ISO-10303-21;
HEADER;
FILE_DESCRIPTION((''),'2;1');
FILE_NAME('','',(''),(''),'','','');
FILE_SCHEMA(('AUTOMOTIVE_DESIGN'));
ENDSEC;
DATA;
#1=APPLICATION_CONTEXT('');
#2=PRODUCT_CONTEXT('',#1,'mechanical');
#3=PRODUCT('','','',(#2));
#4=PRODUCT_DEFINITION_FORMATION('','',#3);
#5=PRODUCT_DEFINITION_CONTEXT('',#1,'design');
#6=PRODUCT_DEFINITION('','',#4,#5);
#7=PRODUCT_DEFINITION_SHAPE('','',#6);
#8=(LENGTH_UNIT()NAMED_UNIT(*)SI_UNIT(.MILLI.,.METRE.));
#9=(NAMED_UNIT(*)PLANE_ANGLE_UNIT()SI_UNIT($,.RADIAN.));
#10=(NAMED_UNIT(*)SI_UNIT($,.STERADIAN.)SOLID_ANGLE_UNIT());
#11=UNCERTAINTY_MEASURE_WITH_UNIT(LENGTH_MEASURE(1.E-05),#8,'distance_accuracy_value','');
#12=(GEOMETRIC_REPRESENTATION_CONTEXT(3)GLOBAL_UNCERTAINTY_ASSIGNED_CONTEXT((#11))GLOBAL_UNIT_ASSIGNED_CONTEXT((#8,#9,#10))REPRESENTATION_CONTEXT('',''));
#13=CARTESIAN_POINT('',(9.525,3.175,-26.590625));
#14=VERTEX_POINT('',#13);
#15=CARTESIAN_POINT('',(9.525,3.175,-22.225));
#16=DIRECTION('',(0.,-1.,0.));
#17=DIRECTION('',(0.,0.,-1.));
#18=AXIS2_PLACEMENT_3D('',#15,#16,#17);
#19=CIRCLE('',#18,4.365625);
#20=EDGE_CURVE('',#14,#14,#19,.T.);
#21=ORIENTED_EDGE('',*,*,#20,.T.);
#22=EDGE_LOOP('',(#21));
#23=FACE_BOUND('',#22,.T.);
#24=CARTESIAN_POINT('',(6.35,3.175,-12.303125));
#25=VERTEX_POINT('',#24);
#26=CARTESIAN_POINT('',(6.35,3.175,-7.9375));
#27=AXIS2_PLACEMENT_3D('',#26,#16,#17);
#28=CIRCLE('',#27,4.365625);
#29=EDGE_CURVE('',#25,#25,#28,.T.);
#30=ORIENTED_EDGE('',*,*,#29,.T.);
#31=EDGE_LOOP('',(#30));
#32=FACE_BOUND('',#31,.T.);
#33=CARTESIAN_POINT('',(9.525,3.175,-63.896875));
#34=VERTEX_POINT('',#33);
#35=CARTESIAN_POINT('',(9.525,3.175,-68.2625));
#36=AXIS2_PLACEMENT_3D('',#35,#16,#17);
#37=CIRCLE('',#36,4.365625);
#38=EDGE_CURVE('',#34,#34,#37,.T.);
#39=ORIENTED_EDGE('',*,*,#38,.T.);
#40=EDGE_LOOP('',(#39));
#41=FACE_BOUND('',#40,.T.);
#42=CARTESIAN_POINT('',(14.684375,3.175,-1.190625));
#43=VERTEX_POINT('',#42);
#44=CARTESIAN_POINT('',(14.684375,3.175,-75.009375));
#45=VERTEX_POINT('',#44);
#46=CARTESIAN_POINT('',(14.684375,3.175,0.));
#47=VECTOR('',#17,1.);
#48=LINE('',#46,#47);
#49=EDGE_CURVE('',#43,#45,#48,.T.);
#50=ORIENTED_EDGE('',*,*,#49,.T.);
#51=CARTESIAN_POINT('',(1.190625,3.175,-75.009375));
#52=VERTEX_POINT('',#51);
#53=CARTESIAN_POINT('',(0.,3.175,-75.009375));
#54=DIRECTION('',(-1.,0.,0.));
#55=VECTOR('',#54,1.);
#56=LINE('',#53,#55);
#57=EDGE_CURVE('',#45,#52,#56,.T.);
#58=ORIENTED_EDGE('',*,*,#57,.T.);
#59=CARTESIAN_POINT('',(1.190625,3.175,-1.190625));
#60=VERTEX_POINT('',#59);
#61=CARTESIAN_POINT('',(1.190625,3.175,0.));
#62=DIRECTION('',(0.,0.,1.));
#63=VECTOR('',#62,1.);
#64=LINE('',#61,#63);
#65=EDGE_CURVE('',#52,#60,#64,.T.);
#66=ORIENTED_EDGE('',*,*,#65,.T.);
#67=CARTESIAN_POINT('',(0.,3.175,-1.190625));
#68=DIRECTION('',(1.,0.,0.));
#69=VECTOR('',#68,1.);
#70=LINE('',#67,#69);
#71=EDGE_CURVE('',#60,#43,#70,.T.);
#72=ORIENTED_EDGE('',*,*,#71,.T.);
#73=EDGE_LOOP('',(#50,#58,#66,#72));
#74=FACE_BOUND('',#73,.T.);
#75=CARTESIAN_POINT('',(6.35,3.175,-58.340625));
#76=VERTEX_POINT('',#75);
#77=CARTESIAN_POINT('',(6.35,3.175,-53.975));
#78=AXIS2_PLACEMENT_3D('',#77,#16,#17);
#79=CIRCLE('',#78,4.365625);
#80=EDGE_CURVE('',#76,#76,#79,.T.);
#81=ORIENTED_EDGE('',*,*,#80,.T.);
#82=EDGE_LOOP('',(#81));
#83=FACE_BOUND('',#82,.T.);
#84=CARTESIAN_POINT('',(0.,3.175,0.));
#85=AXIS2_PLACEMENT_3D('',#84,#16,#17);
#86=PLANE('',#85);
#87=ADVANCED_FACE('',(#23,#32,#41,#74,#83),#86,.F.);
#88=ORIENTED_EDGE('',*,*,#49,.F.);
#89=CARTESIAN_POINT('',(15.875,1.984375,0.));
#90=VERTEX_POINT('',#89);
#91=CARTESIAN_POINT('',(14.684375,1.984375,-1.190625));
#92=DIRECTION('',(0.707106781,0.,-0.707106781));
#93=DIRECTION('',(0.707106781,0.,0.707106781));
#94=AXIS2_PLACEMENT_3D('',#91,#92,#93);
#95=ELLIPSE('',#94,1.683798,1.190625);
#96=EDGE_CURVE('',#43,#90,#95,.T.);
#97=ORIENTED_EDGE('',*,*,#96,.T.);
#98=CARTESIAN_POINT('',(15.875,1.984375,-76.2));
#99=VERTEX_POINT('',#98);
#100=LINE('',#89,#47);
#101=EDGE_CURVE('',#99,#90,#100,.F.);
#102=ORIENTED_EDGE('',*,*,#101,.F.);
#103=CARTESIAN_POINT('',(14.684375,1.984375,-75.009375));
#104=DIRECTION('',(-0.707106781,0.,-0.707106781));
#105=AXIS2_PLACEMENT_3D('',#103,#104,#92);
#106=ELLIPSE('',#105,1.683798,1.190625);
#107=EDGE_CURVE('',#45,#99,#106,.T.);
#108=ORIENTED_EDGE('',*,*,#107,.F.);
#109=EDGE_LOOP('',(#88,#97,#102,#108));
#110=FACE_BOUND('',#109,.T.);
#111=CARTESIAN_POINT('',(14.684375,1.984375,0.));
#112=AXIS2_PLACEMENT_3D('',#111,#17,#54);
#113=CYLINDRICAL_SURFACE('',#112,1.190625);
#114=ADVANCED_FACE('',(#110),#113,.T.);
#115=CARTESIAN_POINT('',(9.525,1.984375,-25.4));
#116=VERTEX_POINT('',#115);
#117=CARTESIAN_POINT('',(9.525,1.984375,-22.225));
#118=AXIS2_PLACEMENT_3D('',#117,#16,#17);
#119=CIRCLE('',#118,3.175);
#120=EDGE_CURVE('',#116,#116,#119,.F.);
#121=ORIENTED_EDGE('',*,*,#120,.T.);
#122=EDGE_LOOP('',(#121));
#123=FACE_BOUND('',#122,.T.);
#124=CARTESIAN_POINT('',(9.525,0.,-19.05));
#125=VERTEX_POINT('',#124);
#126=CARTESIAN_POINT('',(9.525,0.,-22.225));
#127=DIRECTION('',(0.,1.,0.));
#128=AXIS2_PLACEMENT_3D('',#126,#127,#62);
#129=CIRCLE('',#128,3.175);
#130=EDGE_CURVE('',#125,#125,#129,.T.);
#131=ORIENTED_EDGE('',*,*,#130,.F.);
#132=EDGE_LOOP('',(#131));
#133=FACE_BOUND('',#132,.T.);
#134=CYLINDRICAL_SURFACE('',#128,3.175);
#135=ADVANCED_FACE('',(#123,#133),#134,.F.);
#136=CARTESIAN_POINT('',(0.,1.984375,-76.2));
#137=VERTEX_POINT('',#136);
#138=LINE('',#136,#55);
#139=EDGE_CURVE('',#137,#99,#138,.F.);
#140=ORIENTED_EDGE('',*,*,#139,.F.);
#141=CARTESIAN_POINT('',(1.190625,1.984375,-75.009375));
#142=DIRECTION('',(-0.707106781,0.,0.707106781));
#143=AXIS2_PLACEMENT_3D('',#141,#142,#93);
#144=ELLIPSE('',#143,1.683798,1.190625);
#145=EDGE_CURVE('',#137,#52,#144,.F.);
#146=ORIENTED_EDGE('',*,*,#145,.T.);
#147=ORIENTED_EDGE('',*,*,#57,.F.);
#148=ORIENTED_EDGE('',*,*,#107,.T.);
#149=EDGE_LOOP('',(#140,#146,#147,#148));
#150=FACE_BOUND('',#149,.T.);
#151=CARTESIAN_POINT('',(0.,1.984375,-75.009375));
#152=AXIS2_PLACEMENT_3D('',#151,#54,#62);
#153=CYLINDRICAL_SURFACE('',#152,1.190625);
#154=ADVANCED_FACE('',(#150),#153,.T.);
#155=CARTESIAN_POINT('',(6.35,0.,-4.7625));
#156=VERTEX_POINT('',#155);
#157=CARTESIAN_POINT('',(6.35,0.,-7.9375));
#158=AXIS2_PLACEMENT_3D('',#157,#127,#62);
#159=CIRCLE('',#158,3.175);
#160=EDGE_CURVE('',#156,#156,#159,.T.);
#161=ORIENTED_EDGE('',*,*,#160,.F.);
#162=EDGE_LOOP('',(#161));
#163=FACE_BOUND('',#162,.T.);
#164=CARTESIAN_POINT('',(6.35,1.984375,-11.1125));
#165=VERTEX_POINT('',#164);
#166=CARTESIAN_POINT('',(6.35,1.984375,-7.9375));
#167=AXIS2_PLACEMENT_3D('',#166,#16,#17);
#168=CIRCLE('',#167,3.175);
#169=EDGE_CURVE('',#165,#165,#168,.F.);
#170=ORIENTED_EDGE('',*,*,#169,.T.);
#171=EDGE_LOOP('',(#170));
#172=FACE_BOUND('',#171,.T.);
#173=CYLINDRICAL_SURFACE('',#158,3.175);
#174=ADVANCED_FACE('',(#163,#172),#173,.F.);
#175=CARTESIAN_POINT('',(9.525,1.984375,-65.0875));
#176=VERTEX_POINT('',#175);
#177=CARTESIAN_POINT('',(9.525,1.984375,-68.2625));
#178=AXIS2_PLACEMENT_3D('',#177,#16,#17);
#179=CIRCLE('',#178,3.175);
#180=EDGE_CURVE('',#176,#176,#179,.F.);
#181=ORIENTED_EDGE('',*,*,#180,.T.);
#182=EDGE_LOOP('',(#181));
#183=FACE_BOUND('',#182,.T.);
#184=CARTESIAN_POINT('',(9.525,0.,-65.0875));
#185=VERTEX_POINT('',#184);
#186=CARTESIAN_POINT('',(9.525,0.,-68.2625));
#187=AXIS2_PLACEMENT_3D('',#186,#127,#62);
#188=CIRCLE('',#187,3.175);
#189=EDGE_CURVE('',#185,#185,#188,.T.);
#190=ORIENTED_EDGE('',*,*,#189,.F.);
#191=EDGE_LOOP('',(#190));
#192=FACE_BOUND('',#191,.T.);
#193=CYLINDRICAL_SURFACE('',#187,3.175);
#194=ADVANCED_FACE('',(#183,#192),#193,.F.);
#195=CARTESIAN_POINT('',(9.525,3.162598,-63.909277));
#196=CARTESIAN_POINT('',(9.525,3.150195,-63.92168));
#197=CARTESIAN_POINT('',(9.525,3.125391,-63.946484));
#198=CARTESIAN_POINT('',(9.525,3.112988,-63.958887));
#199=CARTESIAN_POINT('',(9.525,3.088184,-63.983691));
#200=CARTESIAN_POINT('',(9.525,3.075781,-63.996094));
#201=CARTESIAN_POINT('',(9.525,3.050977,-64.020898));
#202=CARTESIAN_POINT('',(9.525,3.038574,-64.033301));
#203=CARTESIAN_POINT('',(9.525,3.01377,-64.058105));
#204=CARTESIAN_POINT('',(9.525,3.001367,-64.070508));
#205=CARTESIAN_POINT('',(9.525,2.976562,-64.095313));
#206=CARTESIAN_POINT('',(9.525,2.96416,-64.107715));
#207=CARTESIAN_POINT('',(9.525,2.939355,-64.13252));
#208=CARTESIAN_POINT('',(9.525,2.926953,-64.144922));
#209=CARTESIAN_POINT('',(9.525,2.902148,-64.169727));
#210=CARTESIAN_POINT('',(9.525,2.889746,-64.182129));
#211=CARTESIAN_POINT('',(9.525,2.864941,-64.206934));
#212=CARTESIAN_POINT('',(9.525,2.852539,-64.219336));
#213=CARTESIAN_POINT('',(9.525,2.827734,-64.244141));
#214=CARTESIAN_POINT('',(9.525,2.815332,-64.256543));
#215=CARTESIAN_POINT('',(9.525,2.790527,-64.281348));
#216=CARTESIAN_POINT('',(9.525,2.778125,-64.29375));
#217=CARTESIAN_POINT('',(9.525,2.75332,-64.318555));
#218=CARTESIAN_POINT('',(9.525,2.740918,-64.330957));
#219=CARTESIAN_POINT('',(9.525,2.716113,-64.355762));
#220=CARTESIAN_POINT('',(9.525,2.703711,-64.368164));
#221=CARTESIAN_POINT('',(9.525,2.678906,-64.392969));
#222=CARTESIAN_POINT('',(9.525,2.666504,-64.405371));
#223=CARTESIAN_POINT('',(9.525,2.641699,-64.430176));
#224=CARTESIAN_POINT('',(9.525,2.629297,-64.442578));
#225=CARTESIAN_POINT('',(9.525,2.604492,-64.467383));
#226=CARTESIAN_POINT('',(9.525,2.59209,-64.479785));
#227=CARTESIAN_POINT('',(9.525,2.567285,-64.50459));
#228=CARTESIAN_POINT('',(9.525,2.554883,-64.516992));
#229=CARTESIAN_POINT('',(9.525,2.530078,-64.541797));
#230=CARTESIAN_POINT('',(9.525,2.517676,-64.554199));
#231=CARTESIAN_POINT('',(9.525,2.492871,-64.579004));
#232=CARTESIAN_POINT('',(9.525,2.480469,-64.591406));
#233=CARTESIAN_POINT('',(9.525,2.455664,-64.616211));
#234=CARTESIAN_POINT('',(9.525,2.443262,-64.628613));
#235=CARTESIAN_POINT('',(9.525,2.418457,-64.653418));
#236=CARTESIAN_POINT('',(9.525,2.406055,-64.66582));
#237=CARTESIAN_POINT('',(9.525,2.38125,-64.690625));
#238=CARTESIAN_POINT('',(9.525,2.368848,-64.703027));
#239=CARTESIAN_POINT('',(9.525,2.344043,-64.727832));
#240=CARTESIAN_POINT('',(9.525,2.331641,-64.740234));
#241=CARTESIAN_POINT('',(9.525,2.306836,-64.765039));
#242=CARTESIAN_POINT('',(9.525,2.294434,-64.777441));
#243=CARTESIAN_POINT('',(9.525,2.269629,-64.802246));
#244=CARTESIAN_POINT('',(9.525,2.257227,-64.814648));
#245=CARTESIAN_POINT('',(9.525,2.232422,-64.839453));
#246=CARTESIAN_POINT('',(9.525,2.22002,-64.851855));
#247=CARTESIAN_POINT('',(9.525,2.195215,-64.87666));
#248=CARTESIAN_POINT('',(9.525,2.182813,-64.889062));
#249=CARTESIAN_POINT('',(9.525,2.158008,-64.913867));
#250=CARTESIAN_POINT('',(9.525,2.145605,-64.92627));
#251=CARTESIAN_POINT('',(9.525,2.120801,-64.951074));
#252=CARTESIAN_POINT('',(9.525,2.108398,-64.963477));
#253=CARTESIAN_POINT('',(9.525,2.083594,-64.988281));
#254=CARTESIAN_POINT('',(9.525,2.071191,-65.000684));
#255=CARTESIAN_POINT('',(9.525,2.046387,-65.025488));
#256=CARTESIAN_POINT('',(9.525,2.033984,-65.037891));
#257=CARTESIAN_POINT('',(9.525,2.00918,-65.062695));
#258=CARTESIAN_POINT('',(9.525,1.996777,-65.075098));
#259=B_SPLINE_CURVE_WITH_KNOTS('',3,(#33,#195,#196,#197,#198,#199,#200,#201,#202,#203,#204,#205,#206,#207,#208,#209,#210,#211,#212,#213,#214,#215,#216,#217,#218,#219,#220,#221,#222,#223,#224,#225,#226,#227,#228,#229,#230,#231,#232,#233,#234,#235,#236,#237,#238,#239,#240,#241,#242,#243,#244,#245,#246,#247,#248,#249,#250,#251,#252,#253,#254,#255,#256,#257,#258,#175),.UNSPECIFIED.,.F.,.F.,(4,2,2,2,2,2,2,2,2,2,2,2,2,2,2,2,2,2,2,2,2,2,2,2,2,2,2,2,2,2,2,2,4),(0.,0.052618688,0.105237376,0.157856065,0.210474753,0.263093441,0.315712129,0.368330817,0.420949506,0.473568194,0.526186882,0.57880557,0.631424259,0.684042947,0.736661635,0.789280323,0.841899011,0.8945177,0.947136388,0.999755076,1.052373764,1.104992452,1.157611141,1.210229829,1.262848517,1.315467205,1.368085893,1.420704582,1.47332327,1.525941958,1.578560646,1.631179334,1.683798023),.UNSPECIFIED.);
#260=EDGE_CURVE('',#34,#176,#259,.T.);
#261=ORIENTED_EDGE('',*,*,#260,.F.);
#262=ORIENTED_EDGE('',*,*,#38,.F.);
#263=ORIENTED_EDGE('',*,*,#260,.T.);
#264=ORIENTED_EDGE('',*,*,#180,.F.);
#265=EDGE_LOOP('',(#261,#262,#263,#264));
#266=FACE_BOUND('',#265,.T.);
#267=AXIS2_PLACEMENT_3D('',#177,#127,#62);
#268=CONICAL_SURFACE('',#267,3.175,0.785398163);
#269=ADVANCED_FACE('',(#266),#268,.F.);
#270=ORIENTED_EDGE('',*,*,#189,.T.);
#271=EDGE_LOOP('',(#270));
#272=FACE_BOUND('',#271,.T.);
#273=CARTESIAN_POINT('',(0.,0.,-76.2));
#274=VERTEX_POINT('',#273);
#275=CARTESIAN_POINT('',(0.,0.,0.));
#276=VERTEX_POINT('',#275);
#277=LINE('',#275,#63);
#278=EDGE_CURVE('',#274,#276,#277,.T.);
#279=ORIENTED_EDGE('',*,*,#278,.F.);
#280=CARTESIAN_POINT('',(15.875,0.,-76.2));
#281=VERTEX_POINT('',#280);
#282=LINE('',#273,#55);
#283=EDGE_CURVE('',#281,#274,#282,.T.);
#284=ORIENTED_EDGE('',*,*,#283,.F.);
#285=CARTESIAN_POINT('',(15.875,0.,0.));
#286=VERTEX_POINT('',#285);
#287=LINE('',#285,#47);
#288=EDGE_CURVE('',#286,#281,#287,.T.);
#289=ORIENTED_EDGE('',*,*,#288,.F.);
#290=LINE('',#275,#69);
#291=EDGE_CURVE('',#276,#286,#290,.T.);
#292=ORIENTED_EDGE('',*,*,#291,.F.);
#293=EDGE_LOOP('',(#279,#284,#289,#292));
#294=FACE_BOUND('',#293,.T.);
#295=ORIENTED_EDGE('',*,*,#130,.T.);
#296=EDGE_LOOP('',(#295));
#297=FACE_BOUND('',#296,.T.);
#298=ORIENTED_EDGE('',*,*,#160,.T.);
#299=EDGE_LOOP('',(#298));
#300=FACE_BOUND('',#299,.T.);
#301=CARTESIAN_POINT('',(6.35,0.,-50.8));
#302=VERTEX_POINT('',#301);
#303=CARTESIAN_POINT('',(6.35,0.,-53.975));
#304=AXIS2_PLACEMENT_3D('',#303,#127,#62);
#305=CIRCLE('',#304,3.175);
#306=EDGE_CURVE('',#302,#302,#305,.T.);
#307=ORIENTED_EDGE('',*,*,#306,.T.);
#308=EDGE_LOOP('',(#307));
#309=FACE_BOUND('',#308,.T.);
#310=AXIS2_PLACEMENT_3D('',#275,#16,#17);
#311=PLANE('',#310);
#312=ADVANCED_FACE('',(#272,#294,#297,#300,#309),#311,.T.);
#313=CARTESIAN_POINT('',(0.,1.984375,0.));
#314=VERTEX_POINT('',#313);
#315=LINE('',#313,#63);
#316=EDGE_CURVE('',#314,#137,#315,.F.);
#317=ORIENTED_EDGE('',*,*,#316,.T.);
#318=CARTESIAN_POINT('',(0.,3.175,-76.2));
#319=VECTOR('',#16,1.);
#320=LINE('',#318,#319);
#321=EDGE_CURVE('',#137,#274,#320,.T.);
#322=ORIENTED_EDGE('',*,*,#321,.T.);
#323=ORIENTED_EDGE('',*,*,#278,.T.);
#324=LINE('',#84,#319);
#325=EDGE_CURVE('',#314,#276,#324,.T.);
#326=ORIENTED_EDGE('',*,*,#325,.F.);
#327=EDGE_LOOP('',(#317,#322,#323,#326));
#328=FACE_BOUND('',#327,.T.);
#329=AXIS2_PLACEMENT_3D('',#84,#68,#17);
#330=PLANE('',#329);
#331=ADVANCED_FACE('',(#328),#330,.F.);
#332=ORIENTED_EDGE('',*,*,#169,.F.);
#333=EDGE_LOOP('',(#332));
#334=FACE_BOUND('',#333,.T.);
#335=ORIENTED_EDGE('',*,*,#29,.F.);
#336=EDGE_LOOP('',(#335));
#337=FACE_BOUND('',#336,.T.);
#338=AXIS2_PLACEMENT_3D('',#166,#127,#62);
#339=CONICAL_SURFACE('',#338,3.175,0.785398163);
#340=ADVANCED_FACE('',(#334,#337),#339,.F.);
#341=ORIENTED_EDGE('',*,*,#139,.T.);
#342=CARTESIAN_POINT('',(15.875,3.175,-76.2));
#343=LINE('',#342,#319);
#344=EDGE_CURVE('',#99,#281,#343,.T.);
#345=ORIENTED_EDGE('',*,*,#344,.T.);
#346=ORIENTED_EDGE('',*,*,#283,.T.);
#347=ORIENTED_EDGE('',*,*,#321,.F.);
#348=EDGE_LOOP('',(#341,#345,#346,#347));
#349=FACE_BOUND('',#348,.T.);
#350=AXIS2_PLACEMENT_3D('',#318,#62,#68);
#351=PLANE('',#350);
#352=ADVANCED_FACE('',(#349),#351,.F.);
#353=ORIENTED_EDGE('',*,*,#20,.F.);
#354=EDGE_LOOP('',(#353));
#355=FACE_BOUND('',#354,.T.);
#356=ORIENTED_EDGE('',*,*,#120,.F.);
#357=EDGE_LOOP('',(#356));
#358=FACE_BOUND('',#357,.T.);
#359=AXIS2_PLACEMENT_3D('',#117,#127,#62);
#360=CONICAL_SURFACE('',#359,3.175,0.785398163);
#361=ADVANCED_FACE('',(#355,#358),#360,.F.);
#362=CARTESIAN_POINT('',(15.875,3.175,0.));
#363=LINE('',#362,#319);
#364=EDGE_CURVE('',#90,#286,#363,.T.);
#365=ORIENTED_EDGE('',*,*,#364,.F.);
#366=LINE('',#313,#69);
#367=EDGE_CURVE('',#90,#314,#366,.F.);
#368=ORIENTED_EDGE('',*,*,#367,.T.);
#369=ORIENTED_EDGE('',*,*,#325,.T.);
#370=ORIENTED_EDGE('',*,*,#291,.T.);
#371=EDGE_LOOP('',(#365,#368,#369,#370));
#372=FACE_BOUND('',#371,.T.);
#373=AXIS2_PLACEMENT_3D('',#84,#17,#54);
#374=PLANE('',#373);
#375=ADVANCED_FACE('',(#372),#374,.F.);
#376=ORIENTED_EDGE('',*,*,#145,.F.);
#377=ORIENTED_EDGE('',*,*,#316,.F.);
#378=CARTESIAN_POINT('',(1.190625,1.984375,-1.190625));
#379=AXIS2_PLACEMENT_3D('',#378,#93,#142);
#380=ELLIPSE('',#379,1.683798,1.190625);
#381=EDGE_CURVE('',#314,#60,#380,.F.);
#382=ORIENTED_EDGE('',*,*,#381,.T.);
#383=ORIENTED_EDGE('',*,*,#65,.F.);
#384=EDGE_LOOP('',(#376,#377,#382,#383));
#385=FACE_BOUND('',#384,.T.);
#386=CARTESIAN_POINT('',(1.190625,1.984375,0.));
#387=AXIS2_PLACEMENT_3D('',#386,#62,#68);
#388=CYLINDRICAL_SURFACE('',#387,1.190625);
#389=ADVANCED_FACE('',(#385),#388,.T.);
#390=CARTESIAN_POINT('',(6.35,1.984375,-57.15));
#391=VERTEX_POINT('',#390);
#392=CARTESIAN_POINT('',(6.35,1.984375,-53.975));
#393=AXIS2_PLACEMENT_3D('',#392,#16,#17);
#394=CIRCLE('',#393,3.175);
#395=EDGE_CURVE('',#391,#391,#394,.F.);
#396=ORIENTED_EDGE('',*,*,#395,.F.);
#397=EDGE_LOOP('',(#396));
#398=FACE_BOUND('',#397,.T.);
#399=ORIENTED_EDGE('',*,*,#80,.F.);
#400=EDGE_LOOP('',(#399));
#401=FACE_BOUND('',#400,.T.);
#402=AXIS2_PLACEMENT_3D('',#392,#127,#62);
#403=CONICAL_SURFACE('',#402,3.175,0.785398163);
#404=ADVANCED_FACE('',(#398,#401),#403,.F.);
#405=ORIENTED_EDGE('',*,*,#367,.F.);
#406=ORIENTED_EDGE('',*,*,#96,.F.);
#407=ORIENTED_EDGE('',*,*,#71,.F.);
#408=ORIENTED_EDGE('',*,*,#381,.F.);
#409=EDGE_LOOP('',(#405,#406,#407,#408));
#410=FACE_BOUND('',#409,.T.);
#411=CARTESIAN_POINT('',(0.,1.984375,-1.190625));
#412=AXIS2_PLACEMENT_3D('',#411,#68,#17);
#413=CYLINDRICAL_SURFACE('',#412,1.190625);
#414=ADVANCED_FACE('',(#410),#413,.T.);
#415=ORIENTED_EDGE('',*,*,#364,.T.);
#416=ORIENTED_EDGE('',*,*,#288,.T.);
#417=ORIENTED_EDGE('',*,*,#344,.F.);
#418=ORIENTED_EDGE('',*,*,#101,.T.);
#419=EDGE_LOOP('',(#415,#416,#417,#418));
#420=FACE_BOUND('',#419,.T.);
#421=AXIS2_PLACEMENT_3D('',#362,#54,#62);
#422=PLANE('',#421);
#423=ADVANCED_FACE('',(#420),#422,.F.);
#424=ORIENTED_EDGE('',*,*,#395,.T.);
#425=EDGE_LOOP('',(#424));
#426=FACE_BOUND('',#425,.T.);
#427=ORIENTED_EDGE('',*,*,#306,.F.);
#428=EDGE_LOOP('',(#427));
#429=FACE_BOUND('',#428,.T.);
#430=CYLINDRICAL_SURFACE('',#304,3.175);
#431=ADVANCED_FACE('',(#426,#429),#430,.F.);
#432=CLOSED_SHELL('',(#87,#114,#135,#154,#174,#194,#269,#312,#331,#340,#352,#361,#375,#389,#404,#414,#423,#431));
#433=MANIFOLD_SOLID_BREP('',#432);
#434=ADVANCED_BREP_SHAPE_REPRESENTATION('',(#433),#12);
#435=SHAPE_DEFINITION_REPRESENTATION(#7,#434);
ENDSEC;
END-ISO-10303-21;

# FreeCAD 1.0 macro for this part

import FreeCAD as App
import Part
import Sketcher

V = App.Vector
Q = App.Units.Quantity


def edges_at(feature, points):
    """Names of the edges that pass closest to the given points."""
    edges = feature.Shape.Edges
    near = lambda p: min(range(len(edges)), key=lambda i: edges[i].distToShape(Part.Vertex(*p))[0])
    return sorted({f"Edge{near(p) + 1}" for p in points})

doc = App.newDocument("Part")
params = doc.addObject("Spreadsheet::Sheet", "Params")
for row, (alias, value) in enumerate([
    ("sketch1_height", "3 in"),
    ("sketch1_width", "0.625 in"),
    ("pad1_length", "0.125 in"),
    ("sketch2_diameter", "0.25 in"),
    ("chamfer_size", "0.046875 in"),
    ("fillet_radius", "0.046875 in"),
], start=1):
    params.set(f"A{row}", alias)
    params.set(f"B{row}", "=" + value)
    params.setAlias(f"B{row}", alias)

body = doc.addObject("PartDesign::Body", "Body")

sketch1 = body.newObject("Sketcher::SketchObject", "Sketch")
sketch1.AttachmentSupport = (doc.getObject("XZ_Plane"), [""])
sketch1.MapMode = "FlatFace"
sketch1.addGeometry(Part.LineSegment(V(0, -76.2, 0), V(0, 0, 0)), False)
sketch1.addGeometry(Part.LineSegment(V(0, 0, 0), V(15.875, 0, 0)), False)
sketch1.addGeometry(Part.LineSegment(V(15.875, 0, 0), V(15.875, -76.2, 0)), False)
sketch1.addGeometry(Part.LineSegment(V(15.875, -76.2, 0), V(0, -76.2, 0)), False)
sketch1.addConstraint(Sketcher.Constraint("Coincident", 0, 2, 1, 1))
sketch1.addConstraint(Sketcher.Constraint("Coincident", 1, 2, 2, 1))
sketch1.addConstraint(Sketcher.Constraint("Coincident", 2, 2, 3, 1))
sketch1.addConstraint(Sketcher.Constraint("Coincident", 3, 2, 0, 1))
sketch1.addConstraint(Sketcher.Constraint("Vertical", 0))
sketch1.addConstraint(Sketcher.Constraint("Horizontal", 1))
sketch1.addConstraint(Sketcher.Constraint("Vertical", 2))
sketch1.addConstraint(Sketcher.Constraint("Horizontal", 3))
sketch1.addConstraint(Sketcher.Constraint("Coincident", 0, 2, -1, 1))
sketch1.addConstraint(Sketcher.Constraint("DistanceY", 0, 1, 0, 2, Q("3 in")))
sketch1.addConstraint(Sketcher.Constraint("DistanceX", 1, 1, 1, 2, Q("0.625 in")))
sketch1.setExpression("Constraints[9]", "Params.sketch1_height")
sketch1.setExpression("Constraints[10]", "Params.sketch1_width")
pad1 = body.newObject("PartDesign::Pad", "Pad")
pad1.Profile = sketch1
pad1.setExpression("Length", "Params.pad1_length")
pad1.Reversed = True

sketch2 = body.newObject("Sketcher::SketchObject", "Sketch001")
sketch2.AttachmentSupport = (doc.getObject("XZ_Plane"), [""])
sketch2.MapMode = "FlatFace"
sketch2.AttachmentOffset = App.Placement(V(0, 0, -0.125 * 25.4), App.Rotation())
sketch2.addGeometry(Part.Circle(V(6.35, -53.975, 0), V(0, 0, 1), 3.175), False)
sketch2.addGeometry(Part.Circle(V(9.525, -68.2625, 0), V(0, 0, 1), 3.175), False)
sketch2.addGeometry(Part.Circle(V(9.525, -22.225, 0), V(0, 0, 1), 3.175), False)
sketch2.addGeometry(Part.Circle(V(6.35, -7.9375, 0), V(0, 0, 1), 3.175), False)
sketch2.addConstraint(Sketcher.Constraint("Equal", 0, 1))
sketch2.addConstraint(Sketcher.Constraint("Equal", 1, 2))
sketch2.addConstraint(Sketcher.Constraint("Equal", 2, 3))
sketch2.addConstraint(Sketcher.Constraint("Vertical", 1, 3, 2, 3))
sketch2.addConstraint(Sketcher.Constraint("Vertical", 0, 3, 3, 3))
sketch2.addConstraint(Sketcher.Constraint("Diameter", 0, Q("0.25 in")))
sketch2.addConstraint(Sketcher.Constraint("DistanceX", -1, 1, 0, 3, Q("0.25 in")))
sketch2.addConstraint(Sketcher.Constraint("DistanceY", 0, 3, 2, 3, Q("1.25 in")))
sketch2.addConstraint(Sketcher.Constraint("DistanceY", 0, 3, -1, 1, Q("2.125 in")))
sketch2.addConstraint(Sketcher.Constraint("DistanceX", -1, 1, 1, 3, Q("0.375 in")))
sketch2.addConstraint(Sketcher.Constraint("DistanceY", 1, 3, -1, 1, Q("2.6875 in")))
sketch2.addConstraint(Sketcher.Constraint("DistanceY", 3, 3, -1, 1, Q("0.3125 in")))
sketch2.setExpression("Constraints[5]", "Params.sketch2_diameter")
pocket1 = body.newObject("PartDesign::Pocket", "Pocket")
pocket1.Profile = sketch2
pocket1.Type = "ThroughAll"
pocket1.Reversed = True
doc.recompute()

chamfer = body.newObject("PartDesign::Chamfer", "Chamfer")
chamfer.Base = (pocket1, edges_at(pocket1, [
    (6.35, 3.175, -57.15),
    (9.525, 3.175, -71.438),
    (9.525, 3.175, -25.4),
    (6.35, 3.175, -11.113),
]))
chamfer.setExpression("Size", "Params.chamfer_size")
doc.recompute()

fillet = body.newObject("PartDesign::Fillet", "Fillet")
fillet.Base = (chamfer, edges_at(chamfer, [
    (15.875, 3.175, -38.1),
    (7.938, 3.175, -76.2),
    (0, 3.175, -38.1),
    (7.938, 3.175, 0),
]))
fillet.setExpression("Radius", "Params.fillet_radius")

doc.recompute()
